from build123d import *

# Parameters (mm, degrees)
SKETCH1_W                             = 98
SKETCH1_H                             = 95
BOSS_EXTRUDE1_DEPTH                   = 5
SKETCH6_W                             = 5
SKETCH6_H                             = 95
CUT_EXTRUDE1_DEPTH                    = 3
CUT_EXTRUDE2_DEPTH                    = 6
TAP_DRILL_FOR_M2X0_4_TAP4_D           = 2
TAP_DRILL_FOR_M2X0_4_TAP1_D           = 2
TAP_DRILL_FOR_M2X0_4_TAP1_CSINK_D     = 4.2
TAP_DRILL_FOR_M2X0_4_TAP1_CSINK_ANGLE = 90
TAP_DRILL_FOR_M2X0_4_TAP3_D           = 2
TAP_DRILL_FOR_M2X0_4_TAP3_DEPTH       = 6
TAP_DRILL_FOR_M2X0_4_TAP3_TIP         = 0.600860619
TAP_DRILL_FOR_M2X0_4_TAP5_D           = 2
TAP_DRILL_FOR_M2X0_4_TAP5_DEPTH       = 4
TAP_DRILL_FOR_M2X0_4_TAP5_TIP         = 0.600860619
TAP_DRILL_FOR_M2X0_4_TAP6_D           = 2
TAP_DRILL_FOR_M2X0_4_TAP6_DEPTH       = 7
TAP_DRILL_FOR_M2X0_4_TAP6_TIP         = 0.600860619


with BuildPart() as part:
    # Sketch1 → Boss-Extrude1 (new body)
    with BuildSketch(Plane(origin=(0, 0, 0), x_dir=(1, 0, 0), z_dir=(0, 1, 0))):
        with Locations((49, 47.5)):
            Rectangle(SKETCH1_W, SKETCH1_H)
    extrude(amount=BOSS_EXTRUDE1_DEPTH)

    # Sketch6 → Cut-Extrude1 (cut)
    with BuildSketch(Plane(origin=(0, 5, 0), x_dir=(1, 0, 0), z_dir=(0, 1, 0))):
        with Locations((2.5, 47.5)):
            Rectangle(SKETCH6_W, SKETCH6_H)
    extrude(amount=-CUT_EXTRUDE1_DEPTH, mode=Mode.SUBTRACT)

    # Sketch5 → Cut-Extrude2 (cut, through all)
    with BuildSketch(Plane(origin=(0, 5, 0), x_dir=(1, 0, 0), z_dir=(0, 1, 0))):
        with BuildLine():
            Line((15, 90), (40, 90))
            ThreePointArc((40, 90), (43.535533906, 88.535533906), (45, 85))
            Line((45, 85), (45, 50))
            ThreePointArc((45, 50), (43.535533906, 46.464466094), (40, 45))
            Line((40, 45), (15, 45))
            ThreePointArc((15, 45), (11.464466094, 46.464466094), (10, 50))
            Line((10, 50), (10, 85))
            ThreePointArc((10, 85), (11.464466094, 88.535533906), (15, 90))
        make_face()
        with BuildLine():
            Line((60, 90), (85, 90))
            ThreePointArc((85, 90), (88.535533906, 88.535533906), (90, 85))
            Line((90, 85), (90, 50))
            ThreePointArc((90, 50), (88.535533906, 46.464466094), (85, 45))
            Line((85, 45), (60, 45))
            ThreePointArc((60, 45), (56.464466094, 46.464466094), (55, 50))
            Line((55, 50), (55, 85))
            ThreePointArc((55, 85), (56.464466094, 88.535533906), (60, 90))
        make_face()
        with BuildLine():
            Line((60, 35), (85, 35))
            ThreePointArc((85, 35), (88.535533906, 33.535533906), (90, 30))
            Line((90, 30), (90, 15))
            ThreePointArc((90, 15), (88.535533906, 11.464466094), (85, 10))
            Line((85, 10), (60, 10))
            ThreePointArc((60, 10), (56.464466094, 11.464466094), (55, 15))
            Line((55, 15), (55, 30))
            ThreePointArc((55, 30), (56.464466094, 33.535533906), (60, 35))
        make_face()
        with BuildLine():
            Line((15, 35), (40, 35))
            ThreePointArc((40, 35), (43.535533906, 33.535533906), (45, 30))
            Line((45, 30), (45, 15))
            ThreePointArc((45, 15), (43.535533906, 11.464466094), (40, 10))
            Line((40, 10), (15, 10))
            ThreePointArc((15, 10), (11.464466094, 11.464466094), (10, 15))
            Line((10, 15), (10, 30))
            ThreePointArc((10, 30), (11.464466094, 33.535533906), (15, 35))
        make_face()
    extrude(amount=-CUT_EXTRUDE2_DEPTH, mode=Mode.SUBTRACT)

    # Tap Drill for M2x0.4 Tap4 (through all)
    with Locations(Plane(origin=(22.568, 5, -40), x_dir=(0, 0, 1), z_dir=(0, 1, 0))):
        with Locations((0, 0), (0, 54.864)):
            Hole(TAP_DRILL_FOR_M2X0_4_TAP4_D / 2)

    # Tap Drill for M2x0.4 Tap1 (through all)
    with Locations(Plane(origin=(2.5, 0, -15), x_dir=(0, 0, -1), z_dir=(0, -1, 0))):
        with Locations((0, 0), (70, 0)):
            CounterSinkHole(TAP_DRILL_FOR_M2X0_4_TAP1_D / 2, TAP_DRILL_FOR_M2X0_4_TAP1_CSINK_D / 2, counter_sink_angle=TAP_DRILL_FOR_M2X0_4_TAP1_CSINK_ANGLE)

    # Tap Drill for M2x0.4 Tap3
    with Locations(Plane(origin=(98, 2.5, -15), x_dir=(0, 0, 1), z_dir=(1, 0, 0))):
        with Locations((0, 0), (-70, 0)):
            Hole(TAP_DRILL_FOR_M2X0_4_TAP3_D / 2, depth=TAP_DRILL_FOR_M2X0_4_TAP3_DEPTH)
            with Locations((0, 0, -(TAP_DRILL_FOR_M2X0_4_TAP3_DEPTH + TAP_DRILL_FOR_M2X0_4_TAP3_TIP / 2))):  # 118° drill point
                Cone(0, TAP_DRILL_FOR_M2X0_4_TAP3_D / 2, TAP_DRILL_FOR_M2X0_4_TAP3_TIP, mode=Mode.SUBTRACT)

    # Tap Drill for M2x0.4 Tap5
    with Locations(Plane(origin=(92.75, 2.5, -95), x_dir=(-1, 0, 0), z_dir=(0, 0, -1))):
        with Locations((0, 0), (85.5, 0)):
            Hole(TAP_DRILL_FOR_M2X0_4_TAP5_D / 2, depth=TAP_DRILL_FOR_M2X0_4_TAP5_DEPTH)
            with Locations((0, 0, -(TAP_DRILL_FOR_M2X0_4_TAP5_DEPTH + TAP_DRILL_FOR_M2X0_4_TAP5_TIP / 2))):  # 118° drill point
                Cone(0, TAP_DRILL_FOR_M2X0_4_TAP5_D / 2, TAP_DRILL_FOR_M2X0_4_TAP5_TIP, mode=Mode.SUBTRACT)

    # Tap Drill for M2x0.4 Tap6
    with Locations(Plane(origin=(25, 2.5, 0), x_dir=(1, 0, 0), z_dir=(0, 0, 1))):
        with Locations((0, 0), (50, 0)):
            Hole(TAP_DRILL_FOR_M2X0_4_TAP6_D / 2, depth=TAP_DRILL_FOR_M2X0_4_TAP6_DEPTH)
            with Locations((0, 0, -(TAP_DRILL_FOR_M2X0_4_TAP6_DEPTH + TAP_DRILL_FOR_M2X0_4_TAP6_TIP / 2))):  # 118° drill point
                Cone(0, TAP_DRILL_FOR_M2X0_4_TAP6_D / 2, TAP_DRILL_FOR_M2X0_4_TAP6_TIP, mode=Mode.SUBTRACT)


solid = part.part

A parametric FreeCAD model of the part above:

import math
import FreeCAD as App
import Part
import Sketcher


def add_polygon(sketch, points):
    """Adds a closed chain of lines whose ends are joined by coincident constraints."""
    first, n = sketch.GeometryCount, len(points)
    for a, b in zip(points, points[1:] + points[:1]):
        sketch.addGeometry(Part.LineSegment(App.Vector(*a, 0), App.Vector(*b, 0)), False)
    for i in range(n):
        sketch.addConstraint(Sketcher.Constraint("Coincident", first + i, 2, first + (i + 1) % n, 1))

doc = App.newDocument("Part")
body = doc.addObject("PartDesign::Body", "Body")

# Sketch on XZ plane
sketch1 = body.newObject("Sketcher::SketchObject", "Sketch")
sketch1.AttachmentSupport = (doc.getObject("XZ_Plane"), [""])
sketch1.MapMode = "FlatFace"
add_polygon(sketch1, [(0, -95), (0, 0), (98, 0), (98, -95)])  # lines 0-3
sketch1.addConstraint([
    Sketcher.Constraint("Vertical", 0),
    Sketcher.Constraint("Horizontal", 1),
    Sketcher.Constraint("Vertical", 2),
    Sketcher.Constraint("Horizontal", 3),
    Sketcher.Constraint("Coincident", 0, 2, -1, 1),
    Sketcher.Constraint("DistanceX", 1, 1, 1, 2, 98.0),
    Sketcher.Constraint("DistanceY", 0, 1, 0, 2, 95.0),
])
pad1 = body.newObject("PartDesign::Pad", "Pad")
pad1.Profile = sketch1
pad1.Length = 5
pad1.Reversed = True

# Sketch on XZ plane
sketch2 = body.newObject("Sketcher::SketchObject", "Sketch001")
sketch2.AttachmentSupport = (doc.getObject("XZ_Plane"), [""])
sketch2.MapMode = "FlatFace"
sketch2.AttachmentOffset = App.Placement(App.Vector(0, 0, -5), App.Rotation())
add_polygon(sketch2, [(0, -95), (0, 0), (5, 0), (5, -95)])  # lines 0-3
sketch2.addConstraint([
    Sketcher.Constraint("Vertical", 0),
    Sketcher.Constraint("Horizontal", 1),
    Sketcher.Constraint("Vertical", 2),
    Sketcher.Constraint("Horizontal", 3),
    Sketcher.Constraint("Coincident", 0, 2, -1, 1),
    Sketcher.Constraint("DistanceX", 1, 1, 1, 2, 5.0),
    Sketcher.Constraint("DistanceY", 0, 1, 0, 2, 95.0),
])
pocket1 = body.newObject("PartDesign::Pocket", "Pocket")
pocket1.Profile = sketch2
pocket1.Length = 3
pocket1.Reversed = True

# Sketch on XZ plane
sketch3 = body.newObject("Sketcher::SketchObject", "Sketch002")
sketch3.AttachmentSupport = (doc.getObject("XZ_Plane"), [""])
sketch3.MapMode = "FlatFace"
sketch3.AttachmentOffset = App.Placement(App.Vector(0, 0, -5), App.Rotation())
sketch3.addGeometry([
    Part.LineSegment(App.Vector(40, -90, 0), App.Vector(15, -90, 0)),  # 0
    Part.ArcOfCircle(Part.Circle(App.Vector(15, -85, 0), App.Vector(0, 0, 1), 5), math.radians(180), math.radians(270)),  # 1
    Part.LineSegment(App.Vector(10, -85, 0), App.Vector(10, -50, 0)),  # 2
    Part.ArcOfCircle(Part.Circle(App.Vector(15, -50, 0), App.Vector(0, 0, 1), 5), math.radians(90), math.radians(180)),  # 3
    Part.LineSegment(App.Vector(15, -45, 0), App.Vector(40, -45, 0)),  # 4
    Part.ArcOfCircle(Part.Circle(App.Vector(40, -50, 0), App.Vector(0, 0, 1), 5), math.radians(0), math.radians(90)),  # 5
    Part.LineSegment(App.Vector(45, -50, 0), App.Vector(45, -85, 0)),  # 6
    Part.ArcOfCircle(Part.Circle(App.Vector(40, -85, 0), App.Vector(0, 0, 1), 5), math.radians(-90), math.radians(0)),  # 7
    Part.LineSegment(App.Vector(85, -90, 0), App.Vector(60, -90, 0)),  # 8
    Part.ArcOfCircle(Part.Circle(App.Vector(60, -85, 0), App.Vector(0, 0, 1), 5), math.radians(180), math.radians(270)),  # 9
    Part.LineSegment(App.Vector(55, -85, 0), App.Vector(55, -50, 0)),  # 10
    Part.ArcOfCircle(Part.Circle(App.Vector(60, -50, 0), App.Vector(0, 0, 1), 5), math.radians(90), math.radians(180)),  # 11
    Part.LineSegment(App.Vector(60, -45, 0), App.Vector(85, -45, 0)),  # 12
    Part.ArcOfCircle(Part.Circle(App.Vector(85, -50, 0), App.Vector(0, 0, 1), 5), math.radians(0), math.radians(90)),  # 13
    Part.LineSegment(App.Vector(90, -50, 0), App.Vector(90, -85, 0)),  # 14
    Part.ArcOfCircle(Part.Circle(App.Vector(85, -85, 0), App.Vector(0, 0, 1), 5), math.radians(-90), math.radians(0)),  # 15
    Part.LineSegment(App.Vector(85, -35, 0), App.Vector(60, -35, 0)),  # 16
    Part.ArcOfCircle(Part.Circle(App.Vector(60, -30, 0), App.Vector(0, 0, 1), 5), math.radians(180), math.radians(270)),  # 17
    Part.LineSegment(App.Vector(55, -30, 0), App.Vector(55, -15, 0)),  # 18
    Part.ArcOfCircle(Part.Circle(App.Vector(60, -15, 0), App.Vector(0, 0, 1), 5), math.radians(90), math.radians(180)),  # 19
    Part.LineSegment(App.Vector(60, -10, 0), App.Vector(85, -10, 0)),  # 20
    Part.ArcOfCircle(Part.Circle(App.Vector(85, -15, 0), App.Vector(0, 0, 1), 5), math.radians(0), math.radians(90)),  # 21
    Part.LineSegment(App.Vector(90, -15, 0), App.Vector(90, -30, 0)),  # 22
    Part.ArcOfCircle(Part.Circle(App.Vector(85, -30, 0), App.Vector(0, 0, 1), 5), math.radians(-90), math.radians(0)),  # 23
    Part.LineSegment(App.Vector(40, -35, 0), App.Vector(15, -35, 0)),  # 24
    Part.ArcOfCircle(Part.Circle(App.Vector(15, -30, 0), App.Vector(0, 0, 1), 5), math.radians(180), math.radians(270)),  # 25
    Part.LineSegment(App.Vector(10, -30, 0), App.Vector(10, -15, 0)),  # 26
    Part.ArcOfCircle(Part.Circle(App.Vector(15, -15, 0), App.Vector(0, 0, 1), 5), math.radians(90), math.radians(180)),  # 27
    Part.LineSegment(App.Vector(15, -10, 0), App.Vector(40, -10, 0)),  # 28
    Part.ArcOfCircle(Part.Circle(App.Vector(40, -15, 0), App.Vector(0, 0, 1), 5), math.radians(0), math.radians(90)),  # 29
    Part.LineSegment(App.Vector(45, -15, 0), App.Vector(45, -30, 0)),  # 30
    Part.ArcOfCircle(Part.Circle(App.Vector(40, -30, 0), App.Vector(0, 0, 1), 5), math.radians(-90), math.radians(0)),  # 31
], False)
sketch3.addConstraint([
    Sketcher.Constraint("Tangent", 0, 2, 1, 2),
    Sketcher.Constraint("Tangent", 1, 1, 2, 1),
    Sketcher.Constraint("Tangent", 2, 2, 3, 2),
    Sketcher.Constraint("Tangent", 3, 1, 4, 1),
    Sketcher.Constraint("Tangent", 4, 2, 5, 2),
    Sketcher.Constraint("Tangent", 5, 1, 6, 1),
    Sketcher.Constraint("Tangent", 6, 2, 7, 2),
    Sketcher.Constraint("Tangent", 7, 1, 0, 1),
    Sketcher.Constraint("Tangent", 8, 2, 9, 2),
    Sketcher.Constraint("Tangent", 9, 1, 10, 1),
    Sketcher.Constraint("Tangent", 10, 2, 11, 2),
    Sketcher.Constraint("Tangent", 11, 1, 12, 1),
    Sketcher.Constraint("Tangent", 12, 2, 13, 2),
    Sketcher.Constraint("Tangent", 13, 1, 14, 1),
    Sketcher.Constraint("Tangent", 14, 2, 15, 2),
    Sketcher.Constraint("Tangent", 15, 1, 8, 1),
    Sketcher.Constraint("Tangent", 16, 2, 17, 2),
    Sketcher.Constraint("Tangent", 17, 1, 18, 1),
    Sketcher.Constraint("Tangent", 18, 2, 19, 2),
    Sketcher.Constraint("Tangent", 19, 1, 20, 1),
    Sketcher.Constraint("Tangent", 20, 2, 21, 2),
    Sketcher.Constraint("Tangent", 21, 1, 22, 1),
    Sketcher.Constraint("Tangent", 22, 2, 23, 2),
    Sketcher.Constraint("Tangent", 23, 1, 16, 1),
    Sketcher.Constraint("Tangent", 24, 2, 25, 2),
    Sketcher.Constraint("Tangent", 25, 1, 26, 1),
    Sketcher.Constraint("Tangent", 26, 2, 27, 2),
    Sketcher.Constraint("Tangent", 27, 1, 28, 1),
    Sketcher.Constraint("Tangent", 28, 2, 29, 2),
    Sketcher.Constraint("Tangent", 29, 1, 30, 1),
    Sketcher.Constraint("Tangent", 30, 2, 31, 2),
    Sketcher.Constraint("Tangent", 31, 1, 24, 1),
    Sketcher.Constraint("Horizontal", 0),
    Sketcher.Constraint("Vertical", 2),
    Sketcher.Constraint("Horizontal", 4),
    Sketcher.Constraint("Vertical", 6),
    Sketcher.Constraint("Horizontal", 8),
    Sketcher.Constraint("Vertical", 10),
    Sketcher.Constraint("Horizontal", 12),
    Sketcher.Constraint("Vertical", 14),
    Sketcher.Constraint("Horizontal", 16),
    Sketcher.Constraint("Vertical", 18),
    Sketcher.Constraint("Horizontal", 20),
    Sketcher.Constraint("Vertical", 22),
    Sketcher.Constraint("Horizontal", 24),
    Sketcher.Constraint("Vertical", 26),
    Sketcher.Constraint("Horizontal", 28),
    Sketcher.Constraint("Vertical", 30),
    Sketcher.Constraint("Equal", 1, 3),
    Sketcher.Constraint("Equal", 3, 5),
    Sketcher.Constraint("Equal", 5, 7),
    Sketcher.Constraint("Equal", 7, 9),
    Sketcher.Constraint("Equal", 9, 11),
    Sketcher.Constraint("Equal", 11, 13),
    Sketcher.Constraint("Equal", 13, 15),
    Sketcher.Constraint("Equal", 15, 17),
    Sketcher.Constraint("Equal", 17, 19),
    Sketcher.Constraint("Equal", 19, 21),
    Sketcher.Constraint("Equal", 21, 23),
    Sketcher.Constraint("Equal", 23, 25),
    Sketcher.Constraint("Equal", 25, 27),
    Sketcher.Constraint("Equal", 27, 29),
    Sketcher.Constraint("Equal", 29, 31),
    Sketcher.Constraint("Horizontal", 7, 3, 9, 3),
    Sketcher.Constraint("Horizontal", 5, 3, 11, 3),
    Sketcher.Constraint("Horizontal", 23, 3, 25, 3),
    Sketcher.Constraint("Horizontal", 21, 3, 27, 3),
    Sketcher.Constraint("Vertical", 11, 3, 17, 3),
    Sketcher.Constraint("Vertical", 15, 3, 21, 3),
    Sketcher.Constraint("Vertical", 3, 3, 25, 3),
    Sketcher.Constraint("Vertical", 7, 3, 29, 3),
    Sketcher.Constraint("Equal", 4, 8),
    Sketcher.Constraint("Radius", 1, 5.0),
    Sketcher.Constraint("DistanceX", 0, 2, 0, 1, 25.0),
    Sketcher.Constraint("DistanceY", 2, 1, 2, 2, 35.0),
    Sketcher.Constraint("DistanceY", 18, 1, 18, 2, 15.0),
    Sketcher.Constraint("DistanceX", -1, 1, 1, 3, 15.0),
    Sketcher.Constraint("DistanceY", 1, 3, -1, 1, 85.0),
    Sketcher.Constraint("DistanceX", -1, 1, 9, 3, 60.0),
    Sketcher.Constraint("DistanceY", 17, 3, -1, 1, 30.0),
])
pocket2 = body.newObject("PartDesign::Pocket", "Pocket001")
pocket2.Profile = sketch3
pocket2.Type = "ThroughAll"
pocket2.Reversed = True

# Sketch on XZ plane
sketch4 = body.newObject("Sketcher::SketchObject", "Sketch003")
sketch4.AttachmentSupport = (doc.getObject("XZ_Plane"), [""])
sketch4.MapMode = "FlatFace"
sketch4.AttachmentOffset = App.Placement(App.Vector(0, 0, -5), App.Rotation())
sketch4.addGeometry([
    Part.Circle(App.Vector(22.6, -40, 0), App.Vector(0, 0, 1), 1),
    Part.Circle(App.Vector(77.4, -40, 0), App.Vector(0, 0, 1), 1),
], False)
sketch4.addConstraint([
    Sketcher.Constraint("Equal", 0, 1),
    Sketcher.Constraint("Horizontal", 0, 3, 1, 3),
    Sketcher.Constraint("Diameter", 0, 2.0),
    Sketcher.Constraint("DistanceY", 0, 3, -1, 1, 40.0),
    Sketcher.Constraint("DistanceX", -1, 1, 0, 3, 22.568),
    Sketcher.Constraint("DistanceX", -1, 1, 1, 3, 77.432),
])
doc.recompute()
hole = body.newObject("PartDesign::Hole", "Hole")
hole.Profile = sketch4
hole.ThreadType = "None"
hole.Diameter = 2
hole.DepthType = "ThroughAll"
hole.Reversed = True

# Sketch on XZ plane
sketch5 = body.newObject("Sketcher::SketchObject", "Sketch004")
sketch5.AttachmentSupport = (doc.getObject("XZ_Plane"), [""])
sketch5.MapMode = "FlatFace"
sketch5.addGeometry([
    Part.Circle(App.Vector(2.5, -15, 0), App.Vector(0, 0, 1), 1),
    Part.Circle(App.Vector(2.5, -85, 0), App.Vector(0, 0, 1), 1),
], False)
sketch5.addConstraint([
    Sketcher.Constraint("Equal", 0, 1),
    Sketcher.Constraint("Vertical", 0, 3, 1, 3),
    Sketcher.Constraint("Diameter", 0, 2.0),
    Sketcher.Constraint("DistanceY", 0, 3, -1, 1, 15.0),
    Sketcher.Constraint("DistanceY", 1, 3, -1, 1, 85.0),
    Sketcher.Constraint("DistanceX", -1, 1, 0, 3, 2.5),
])
doc.recompute()
hole2 = body.newObject("PartDesign::Hole", "Hole001")
hole2.Profile = sketch5
hole2.ThreadType = "None"
hole2.Diameter = 2
hole2.DepthType = "ThroughAll"
hole2.HoleCutType = "Countersink"
hole2.HoleCutDiameter = 4.2
hole2.HoleCutCountersinkAngle = 90

# Sketch on YZ plane
sketch6 = body.newObject("Sketcher::SketchObject", "Sketch005")
sketch6.AttachmentSupport = (doc.getObject("YZ_Plane"), [""])
sketch6.MapMode = "FlatFace"
sketch6.AttachmentOffset = App.Placement(App.Vector(0, 0, 98), App.Rotation())
sketch6.addGeometry([
    Part.Circle(App.Vector(2.5, -15, 0), App.Vector(0, 0, 1), 1),
    Part.Circle(App.Vector(2.5, -85, 0), App.Vector(0, 0, 1), 1),
], False)
sketch6.addConstraint([
    Sketcher.Constraint("Equal", 0, 1),
    Sketcher.Constraint("Vertical", 0, 3, 1, 3),
    Sketcher.Constraint("Diameter", 0, 2.0),
    Sketcher.Constraint("DistanceY", 0, 3, -1, 1, 15.0),
    Sketcher.Constraint("DistanceY", 1, 3, -1, 1, 85.0),
    Sketcher.Constraint("DistanceX", -1, 1, 0, 3, 2.5),
])
doc.recompute()
hole3 = body.newObject("PartDesign::Hole", "Hole002")
hole3.Profile = sketch6
hole3.ThreadType = "None"
hole3.Diameter = 2
hole3.DepthType = "Dimension"
hole3.Depth = 6
hole3.DrillPoint = "Angled"
hole3.DrillPointAngle = 118

# Sketch on XY plane
sketch7 = body.newObject("Sketcher::SketchObject", "Sketch006")
sketch7.AttachmentSupport = (doc.getObject("XY_Plane"), [""])
sketch7.MapMode = "FlatFace"
sketch7.AttachmentOffset = App.Placement(App.Vector(0, 0, -95), App.Rotation())
sketch7.addGeometry([
    Part.Circle(App.Vector(92.8, 2.5, 0), App.Vector(0, 0, 1), 1),
    Part.Circle(App.Vector(7.2, 2.5, 0), App.Vector(0, 0, 1), 1),
], False)
sketch7.addConstraint([
    Sketcher.Constraint("Equal", 0, 1),
    Sketcher.Constraint("Horizontal", 0, 3, 1, 3),
    Sketcher.Constraint("Diameter", 0, 2.0),
    Sketcher.Constraint("DistanceY", -1, 1, 0, 3, 2.5),
    Sketcher.Constraint("DistanceX", 1, 3, 0, 3, 85.5),
    Sketcher.Constraint("DistanceX", -1, 1, 0, 3, 92.75),
])
doc.recompute()
hole4 = body.newObject("PartDesign::Hole", "Hole003")
hole4.Profile = sketch7
hole4.ThreadType = "None"
hole4.Diameter = 2
hole4.DepthType = "Dimension"
hole4.Depth = 4
hole4.DrillPoint = "Angled"
hole4.DrillPointAngle = 118
hole4.Reversed = True

# Sketch on XY plane
sketch8 = body.newObject("Sketcher::SketchObject", "Sketch007")
sketch8.AttachmentSupport = (doc.getObject("XY_Plane"), [""])
sketch8.MapMode = "FlatFace"
sketch8.addGeometry([
    Part.Circle(App.Vector(25, 2.5, 0), App.Vector(0, 0, 1), 1),
    Part.Circle(App.Vector(75, 2.5, 0), App.Vector(0, 0, 1), 1),
], False)
sketch8.addConstraint([
    Sketcher.Constraint("Equal", 0, 1),
    Sketcher.Constraint("Horizontal", 0, 3, 1, 3),
    Sketcher.Constraint("Diameter", 0, 2.0),
    Sketcher.Constraint("DistanceX", -1, 1, 0, 3, 25.0),
    Sketcher.Constraint("DistanceX", -1, 1, 1, 3, 75.0),
    Sketcher.Constraint("DistanceY", -1, 1, 0, 3, 2.5),
])
doc.recompute()
hole5 = body.newObject("PartDesign::Hole", "Hole004")
hole5.Profile = sketch8
hole5.ThreadType = "None"
hole5.Diameter = 2
hole5.DepthType = "Dimension"
hole5.Depth = 7
hole5.DrillPoint = "Angled"
hole5.DrillPointAngle = 118

doc.recompute()
